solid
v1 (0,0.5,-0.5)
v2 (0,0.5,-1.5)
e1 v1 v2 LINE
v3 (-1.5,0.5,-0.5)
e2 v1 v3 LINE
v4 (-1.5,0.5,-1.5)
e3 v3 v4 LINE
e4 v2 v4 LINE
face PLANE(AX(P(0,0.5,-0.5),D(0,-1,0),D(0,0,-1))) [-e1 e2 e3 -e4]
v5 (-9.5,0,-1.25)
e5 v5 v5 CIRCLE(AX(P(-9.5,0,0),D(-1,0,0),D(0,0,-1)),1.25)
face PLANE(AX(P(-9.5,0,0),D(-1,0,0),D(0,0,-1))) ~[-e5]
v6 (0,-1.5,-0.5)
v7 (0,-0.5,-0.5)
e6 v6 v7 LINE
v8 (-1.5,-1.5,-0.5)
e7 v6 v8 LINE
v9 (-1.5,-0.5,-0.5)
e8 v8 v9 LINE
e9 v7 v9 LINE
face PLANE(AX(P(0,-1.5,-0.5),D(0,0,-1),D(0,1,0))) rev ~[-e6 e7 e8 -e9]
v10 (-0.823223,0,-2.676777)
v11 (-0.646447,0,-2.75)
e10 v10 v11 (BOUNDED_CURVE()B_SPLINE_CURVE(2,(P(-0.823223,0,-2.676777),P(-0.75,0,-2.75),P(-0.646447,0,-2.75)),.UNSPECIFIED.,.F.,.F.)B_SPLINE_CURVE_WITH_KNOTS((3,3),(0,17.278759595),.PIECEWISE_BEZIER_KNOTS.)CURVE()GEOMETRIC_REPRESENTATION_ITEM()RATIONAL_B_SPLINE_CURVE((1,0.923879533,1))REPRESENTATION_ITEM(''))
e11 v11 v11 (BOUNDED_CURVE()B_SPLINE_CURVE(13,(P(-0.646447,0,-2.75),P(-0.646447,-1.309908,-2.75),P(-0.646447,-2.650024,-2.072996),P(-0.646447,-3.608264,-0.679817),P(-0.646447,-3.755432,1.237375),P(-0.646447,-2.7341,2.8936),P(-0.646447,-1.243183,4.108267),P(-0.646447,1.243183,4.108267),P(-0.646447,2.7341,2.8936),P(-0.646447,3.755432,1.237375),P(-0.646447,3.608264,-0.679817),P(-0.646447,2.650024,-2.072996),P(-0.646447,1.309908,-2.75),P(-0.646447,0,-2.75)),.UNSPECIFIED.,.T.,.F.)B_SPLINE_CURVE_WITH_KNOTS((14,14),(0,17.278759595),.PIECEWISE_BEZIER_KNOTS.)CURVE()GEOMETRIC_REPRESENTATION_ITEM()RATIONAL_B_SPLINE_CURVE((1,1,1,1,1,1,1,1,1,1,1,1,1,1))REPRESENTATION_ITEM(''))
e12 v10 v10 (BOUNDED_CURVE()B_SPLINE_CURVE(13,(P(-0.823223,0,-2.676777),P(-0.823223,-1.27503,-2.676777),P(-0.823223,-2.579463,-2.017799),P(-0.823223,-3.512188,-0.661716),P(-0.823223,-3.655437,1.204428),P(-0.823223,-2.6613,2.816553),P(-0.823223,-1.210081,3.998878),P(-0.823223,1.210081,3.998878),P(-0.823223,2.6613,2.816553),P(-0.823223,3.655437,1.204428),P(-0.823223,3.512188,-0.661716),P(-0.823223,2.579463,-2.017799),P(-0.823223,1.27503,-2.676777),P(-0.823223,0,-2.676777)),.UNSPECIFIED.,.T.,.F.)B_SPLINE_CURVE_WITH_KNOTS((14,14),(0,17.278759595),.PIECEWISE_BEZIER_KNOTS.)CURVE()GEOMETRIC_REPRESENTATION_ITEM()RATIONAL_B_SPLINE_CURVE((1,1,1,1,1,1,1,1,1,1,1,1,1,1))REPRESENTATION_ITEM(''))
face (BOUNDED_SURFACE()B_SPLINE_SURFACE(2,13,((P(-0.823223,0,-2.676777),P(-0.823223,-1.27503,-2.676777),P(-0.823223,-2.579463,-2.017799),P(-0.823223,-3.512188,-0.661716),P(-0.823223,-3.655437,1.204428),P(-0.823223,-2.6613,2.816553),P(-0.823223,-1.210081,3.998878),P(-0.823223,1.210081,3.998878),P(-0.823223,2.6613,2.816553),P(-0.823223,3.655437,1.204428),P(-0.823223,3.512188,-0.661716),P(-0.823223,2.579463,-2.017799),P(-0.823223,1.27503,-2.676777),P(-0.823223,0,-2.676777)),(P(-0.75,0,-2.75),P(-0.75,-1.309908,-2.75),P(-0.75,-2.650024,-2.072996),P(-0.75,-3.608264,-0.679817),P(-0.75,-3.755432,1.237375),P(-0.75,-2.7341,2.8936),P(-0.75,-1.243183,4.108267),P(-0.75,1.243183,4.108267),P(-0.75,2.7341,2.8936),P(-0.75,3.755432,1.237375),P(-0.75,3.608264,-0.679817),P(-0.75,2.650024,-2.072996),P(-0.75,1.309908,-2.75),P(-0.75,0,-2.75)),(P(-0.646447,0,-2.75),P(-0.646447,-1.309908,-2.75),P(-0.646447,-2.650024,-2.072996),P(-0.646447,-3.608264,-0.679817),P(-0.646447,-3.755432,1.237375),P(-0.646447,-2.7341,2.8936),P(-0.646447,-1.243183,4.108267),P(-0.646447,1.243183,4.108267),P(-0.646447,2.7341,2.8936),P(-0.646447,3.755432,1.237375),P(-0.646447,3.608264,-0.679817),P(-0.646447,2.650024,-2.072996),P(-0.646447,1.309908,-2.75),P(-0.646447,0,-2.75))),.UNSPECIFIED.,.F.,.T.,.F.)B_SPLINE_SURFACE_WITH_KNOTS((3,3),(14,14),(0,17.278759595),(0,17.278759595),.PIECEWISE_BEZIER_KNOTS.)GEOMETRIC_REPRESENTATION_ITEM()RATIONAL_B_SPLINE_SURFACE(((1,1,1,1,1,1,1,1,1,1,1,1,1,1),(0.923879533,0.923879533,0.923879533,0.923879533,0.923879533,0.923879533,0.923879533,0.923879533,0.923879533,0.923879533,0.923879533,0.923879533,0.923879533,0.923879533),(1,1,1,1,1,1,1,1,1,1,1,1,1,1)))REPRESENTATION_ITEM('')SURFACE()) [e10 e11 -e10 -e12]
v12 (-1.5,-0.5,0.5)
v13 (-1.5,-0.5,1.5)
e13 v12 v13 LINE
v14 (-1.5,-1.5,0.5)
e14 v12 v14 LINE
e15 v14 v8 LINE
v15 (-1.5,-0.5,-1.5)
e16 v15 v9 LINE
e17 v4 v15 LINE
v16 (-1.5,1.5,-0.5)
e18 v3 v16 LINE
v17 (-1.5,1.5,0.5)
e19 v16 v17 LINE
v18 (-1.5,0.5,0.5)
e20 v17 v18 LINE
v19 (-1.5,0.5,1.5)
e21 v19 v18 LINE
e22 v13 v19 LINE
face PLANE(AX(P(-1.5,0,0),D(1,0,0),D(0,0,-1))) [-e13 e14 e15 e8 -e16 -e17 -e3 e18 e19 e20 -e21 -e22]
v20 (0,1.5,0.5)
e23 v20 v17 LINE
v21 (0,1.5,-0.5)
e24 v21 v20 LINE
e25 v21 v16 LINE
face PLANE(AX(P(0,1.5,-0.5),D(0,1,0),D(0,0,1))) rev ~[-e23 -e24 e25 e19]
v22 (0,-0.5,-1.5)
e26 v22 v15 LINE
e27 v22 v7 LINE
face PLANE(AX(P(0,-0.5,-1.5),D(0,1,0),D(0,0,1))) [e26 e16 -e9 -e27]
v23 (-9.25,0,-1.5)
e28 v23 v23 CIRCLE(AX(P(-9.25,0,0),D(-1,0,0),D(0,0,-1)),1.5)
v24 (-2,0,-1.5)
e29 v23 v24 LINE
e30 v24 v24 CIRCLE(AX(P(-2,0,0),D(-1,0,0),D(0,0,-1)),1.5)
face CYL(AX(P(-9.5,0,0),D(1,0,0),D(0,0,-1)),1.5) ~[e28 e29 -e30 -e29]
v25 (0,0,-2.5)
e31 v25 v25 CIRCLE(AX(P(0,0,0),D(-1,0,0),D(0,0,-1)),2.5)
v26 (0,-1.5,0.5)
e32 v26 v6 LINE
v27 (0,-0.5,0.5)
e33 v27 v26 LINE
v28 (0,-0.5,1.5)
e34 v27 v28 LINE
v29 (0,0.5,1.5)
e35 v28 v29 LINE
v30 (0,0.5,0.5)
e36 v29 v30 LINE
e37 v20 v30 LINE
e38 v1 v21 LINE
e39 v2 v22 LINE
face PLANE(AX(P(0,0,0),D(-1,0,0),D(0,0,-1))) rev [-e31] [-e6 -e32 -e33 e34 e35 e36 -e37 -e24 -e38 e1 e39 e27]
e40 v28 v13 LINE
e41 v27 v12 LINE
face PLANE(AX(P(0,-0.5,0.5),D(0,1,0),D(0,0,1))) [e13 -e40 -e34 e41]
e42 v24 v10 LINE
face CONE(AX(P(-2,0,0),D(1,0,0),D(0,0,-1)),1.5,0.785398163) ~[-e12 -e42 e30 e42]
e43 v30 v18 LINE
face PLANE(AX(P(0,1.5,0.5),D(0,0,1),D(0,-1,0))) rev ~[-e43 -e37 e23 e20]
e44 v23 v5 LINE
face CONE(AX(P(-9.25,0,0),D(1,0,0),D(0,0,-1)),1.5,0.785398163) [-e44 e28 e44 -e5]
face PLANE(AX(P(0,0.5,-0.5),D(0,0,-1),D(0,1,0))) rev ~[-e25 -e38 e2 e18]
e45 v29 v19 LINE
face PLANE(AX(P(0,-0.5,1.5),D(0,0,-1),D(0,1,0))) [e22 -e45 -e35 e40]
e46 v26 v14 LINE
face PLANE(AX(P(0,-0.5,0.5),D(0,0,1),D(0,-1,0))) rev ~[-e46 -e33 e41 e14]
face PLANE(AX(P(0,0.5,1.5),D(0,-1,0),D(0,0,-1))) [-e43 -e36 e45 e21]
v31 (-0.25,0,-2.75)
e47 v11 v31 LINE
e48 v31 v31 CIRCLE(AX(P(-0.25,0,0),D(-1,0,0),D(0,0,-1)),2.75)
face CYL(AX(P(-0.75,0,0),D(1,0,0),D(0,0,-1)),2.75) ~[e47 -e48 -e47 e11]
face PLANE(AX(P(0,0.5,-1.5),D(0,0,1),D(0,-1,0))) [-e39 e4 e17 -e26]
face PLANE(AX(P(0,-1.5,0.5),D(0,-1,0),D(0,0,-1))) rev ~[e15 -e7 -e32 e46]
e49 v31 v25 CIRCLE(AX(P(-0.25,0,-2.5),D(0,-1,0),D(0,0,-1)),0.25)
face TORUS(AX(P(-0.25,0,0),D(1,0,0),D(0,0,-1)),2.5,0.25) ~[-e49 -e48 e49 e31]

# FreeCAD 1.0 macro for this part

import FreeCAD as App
import Part
import Sketcher
Q = App.Units.Quantity


def edges_at(feature, points):
    """Names of the edges that pass closest to the given points."""
    edges = feature.Shape.Edges
    near = lambda p: min(range(len(edges)), key=lambda i: edges[i].distToShape(Part.Vertex(*p))[0])
    return sorted({f"Edge{near(p) + 1}" for p in points})


def add_polygon(sketch, points):
    """Adds a closed chain of lines whose ends are joined by coincident constraints."""
    first, n = sketch.GeometryCount, len(points)
    for a, b in zip(points, points[1:] + points[:1]):
        sketch.addGeometry(Part.LineSegment(App.Vector(*a, 0), App.Vector(*b, 0)), False)
    for i in range(n):
        sketch.addConstraint(Sketcher.Constraint("Coincident", first + i, 2, first + (i + 1) % n, 1))

doc = App.newDocument("Part")
params = doc.addObject("Spreadsheet::Sheet", "Params")
for row, (alias, value) in enumerate([
    ("sketch1_width", "9.5 mm"),
    ("sketch1_width2", "7.5 mm"),
    ("sketch1_height", "1.5 mm"),
    ("sketch1_height2", "2.75 mm"),
    ("revolution_angle", "360 deg"),
    ("fillet_radius", "0.25 mm"),
    ("sketch2_width", "1 mm"),
    ("pocket1_length", "1.5 mm"),
    ("chamfer_size", "0.25 mm"),
], start=1):
    params.set(f"A{row}", alias)
    params.set(f"B{row}", "=" + value)
    params.setAlias(f"B{row}", alias)

body = doc.addObject("PartDesign::Body", "Body")

sketch1 = body.newObject("Sketcher::SketchObject", "Sketch")
sketch1.AttachmentSupport = (doc.getObject("XZ_Plane"), [""])
sketch1.MapMode = "FlatFace"
add_polygon(sketch1, [(-9.5, 0), (0, 0), (0, -2.8), (-0.8, -2.8), (-2, -1.5), (-9.5, -1.5)])
sketch1.addConstraint([
    Sketcher.Constraint("Horizontal", 0),
    Sketcher.Constraint("Vertical", 1),
    Sketcher.Constraint("Horizontal", 2),
    Sketcher.Constraint("Horizontal", 4),
    Sketcher.Constraint("Vertical", 5),
    Sketcher.Constraint("Coincident", 0, 2, -1, 1),
    Sketcher.Constraint("Angle", 3, Q("135 deg")),
    Sketcher.Constraint("DistanceX", 0, 1, 0, 2, Q("9.5 mm")),
    Sketcher.Constraint("DistanceX", 4, 2, 4, 1, Q("7.5 mm")),
    Sketcher.Constraint("DistanceY", 5, 1, 5, 2, Q("1.5 mm")),
    Sketcher.Constraint("DistanceY", 1, 2, 1, 1, Q("2.75 mm")),
])
sketch1.setExpression("Constraints[13]", "Params.sketch1_width")
sketch1.setExpression("Constraints[14]", "Params.sketch1_width2")
sketch1.setExpression("Constraints[15]", "Params.sketch1_height")
sketch1.setExpression("Constraints[16]", "Params.sketch1_height2")
revolution = body.newObject("PartDesign::Revolution", "Revolution")
revolution.Profile = sketch1
revolution.ReferenceAxis = (sketch1, ["H_Axis"])
revolution.setExpression("Angle", "Params.revolution_angle")
doc.recompute()

fillet = body.newObject("PartDesign::Fillet", "Fillet")
fillet.Base = (revolution, edges_at(revolution, [(-0.75, 0, 2.75), (0, 0, 2.75)]))
fillet.setExpression("Radius", "Params.fillet_radius")

sketch2 = body.newObject("Sketcher::SketchObject", "Sketch001")
sketch2.AttachmentSupport = (doc.getObject("YZ_Plane"), [""])
sketch2.MapMode = "FlatFace"
add_polygon(sketch2, [(0.5, 0.5), (0.5, 1.5), (-0.5, 1.5), (-0.5, 0.5), (-1.5, 0.5), (-1.5, -0.5), (-0.5, -0.5), (-0.5, -1.5), (0.5, -1.5), (0.5, -0.5), (1.5, -0.5), (1.5, 0.5)])
sketch2.addConstraint([
    Sketcher.Constraint("Vertical", 0),
    Sketcher.Constraint("Horizontal", 1),
    Sketcher.Constraint("Vertical", 2),
    Sketcher.Constraint("Horizontal", 3),
    Sketcher.Constraint("Vertical", 4),
    Sketcher.Constraint("Horizontal", 5),
    Sketcher.Constraint("Vertical", 6),
    Sketcher.Constraint("Horizontal", 7),
    Sketcher.Constraint("Vertical", 8),
    Sketcher.Constraint("Horizontal", 9),
    Sketcher.Constraint("Vertical", 10),
    Sketcher.Constraint("Horizontal", 11),
    Sketcher.Constraint("Symmetric", 0, 2, 6, 2, -1, 1),
    Sketcher.Constraint("Symmetric", 2, 2, 8, 2, -1, 1),
    Sketcher.Constraint("Symmetric", 4, 2, 10, 2, -1, 1),
    Sketcher.Constraint("Symmetric", 5, 2, 8, 2, -2),
    Sketcher.Constraint("Equal", 1, 3),
    Sketcher.Constraint("Equal", 11, 0),
    Sketcher.Constraint("Equal", 2, 4),
    Sketcher.Constraint("DistanceX", 1, 2, 1, 1, Q("1 mm")),
])
sketch2.setExpression("Constraints[31]", "Params.sketch2_width")
pocket1 = body.newObject("PartDesign::Pocket", "Pocket")
pocket1.Profile = sketch2
pocket1.setExpression("Length", "Params.pocket1_length")
doc.recompute()

chamfer = body.newObject("PartDesign::Chamfer", "Chamfer")
chamfer.Base = (pocket1, edges_at(pocket1, [(-9.5, 0, 1.5)]))
chamfer.setExpression("Size", "Params.chamfer_size")

doc.recompute()
